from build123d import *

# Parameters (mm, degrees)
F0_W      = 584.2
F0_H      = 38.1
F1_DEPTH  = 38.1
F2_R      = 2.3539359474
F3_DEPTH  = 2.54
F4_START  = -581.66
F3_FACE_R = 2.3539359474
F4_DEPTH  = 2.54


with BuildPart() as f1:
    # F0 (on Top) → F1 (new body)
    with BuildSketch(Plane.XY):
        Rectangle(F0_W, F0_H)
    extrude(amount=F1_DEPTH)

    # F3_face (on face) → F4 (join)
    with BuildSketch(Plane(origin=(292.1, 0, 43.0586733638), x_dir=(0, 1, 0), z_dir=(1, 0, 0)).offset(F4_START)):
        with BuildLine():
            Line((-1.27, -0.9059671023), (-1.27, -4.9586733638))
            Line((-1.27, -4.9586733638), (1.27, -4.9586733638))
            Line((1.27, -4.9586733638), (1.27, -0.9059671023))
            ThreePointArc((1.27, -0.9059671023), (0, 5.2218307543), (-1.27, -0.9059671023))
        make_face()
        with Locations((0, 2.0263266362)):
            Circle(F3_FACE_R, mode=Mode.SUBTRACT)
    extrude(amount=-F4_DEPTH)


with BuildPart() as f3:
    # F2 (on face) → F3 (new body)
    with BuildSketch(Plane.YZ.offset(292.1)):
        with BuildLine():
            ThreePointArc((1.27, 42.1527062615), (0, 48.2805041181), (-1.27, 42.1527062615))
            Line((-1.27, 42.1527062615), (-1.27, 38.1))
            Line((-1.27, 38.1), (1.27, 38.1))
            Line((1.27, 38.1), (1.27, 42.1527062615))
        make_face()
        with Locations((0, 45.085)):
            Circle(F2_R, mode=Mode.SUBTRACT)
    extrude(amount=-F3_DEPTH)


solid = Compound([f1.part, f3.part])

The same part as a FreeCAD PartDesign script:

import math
import FreeCAD as App
import Part
import Sketcher

V = App.Vector
Q = App.Units.Quantity


def add_polygon(sketch, points):
    """Adds a closed chain of lines whose ends are joined by coincident constraints."""
    first, n = sketch.GeometryCount, len(points)
    for a, b in zip(points, points[1:] + points[:1]):
        sketch.addGeometry(Part.LineSegment(App.Vector(*a, 0), App.Vector(*b, 0)), False)
    for i in range(n):
        sketch.addConstraint(Sketcher.Constraint("Coincident", first + i, 2, first + (i + 1) % n, 1))

doc = App.newDocument("Part")
body = doc.addObject("PartDesign::Body", "Body")

# Sketch on XY plane
sketch1 = body.newObject("Sketcher::SketchObject", "Sketch")
sketch1.AttachmentSupport = (doc.getObject("XY_Plane"), [""])
sketch1.MapMode = "FlatFace"
add_polygon(sketch1, [(-292, 19), (-292, -19), (292, -19), (292, 19)])  # lines 0-3
sketch1.addConstraint([
    Sketcher.Constraint("Vertical", 0),
    Sketcher.Constraint("Horizontal", 1),
    Sketcher.Constraint("Vertical", 2),
    Sketcher.Constraint("Horizontal", 3),
    Sketcher.Constraint("Symmetric", 0, 2, 2, 2, -1, 1),
    Sketcher.Constraint("DistanceX", 1, 1, 1, 2, Q("23 in")),
    Sketcher.Constraint("DistanceY", 0, 2, 0, 1, Q("1.5 in")),
])
pad1 = body.newObject("PartDesign::Pad", "Pad")
pad1.Profile = sketch1
pad1.Length = Q("1.5 in")

# Sketch on YZ plane
sketch2 = body.newObject("Sketcher::SketchObject", "Sketch001")
sketch2.AttachmentSupport = (doc.getObject("YZ_Plane"), [""])
sketch2.MapMode = "FlatFace"
sketch2.AttachmentOffset = App.Placement(V(0, 0, -11.4 * 25.4), App.Rotation())
sketch2.addGeometry([
    Part.LineSegment(V(-1.3, 42.2, 0), V(-1.3, 38.1, 0)),  # 0
    Part.LineSegment(V(-1.3, 38.1, 0), V(1.3, 38.1, 0)),  # 1
    Part.LineSegment(V(1.3, 38.1, 0), V(1.3, 42.2, 0)),  # 2
    Part.ArcOfCircle(Part.Circle(V(0, 45.1, 0), V(0, 0, 1), 3.2), math.radians(-67), math.radians(247)),  # 3
    Part.Circle(V(0, 45.1, 0), V(0, 0, 1), 2.4),  # 4
], False)
sketch2.addConstraint([
    Sketcher.Constraint("Coincident", 0, 2, 1, 1),
    Sketcher.Constraint("Coincident", 1, 2, 2, 1),
    Sketcher.Constraint("Coincident", 2, 2, 3, 1),
    Sketcher.Constraint("Coincident", 3, 2, 0, 1),
    Sketcher.Constraint("Vertical", 0),
    Sketcher.Constraint("Horizontal", 1),
    Sketcher.Constraint("Vertical", 2),
    Sketcher.Constraint("Coincident", 4, 3, 3, 3),
    Sketcher.Constraint("Symmetric", 2, 2, 3, 2, -2),
    Sketcher.Constraint("DistanceX", 1, 1, 1, 2, Q("0.1 in")),
    Sketcher.Constraint("DistanceY", -1, 1, 0, 2, Q("1.5 in")),
    Sketcher.Constraint("Diameter", 4, 4.707872),
    Sketcher.Constraint("DistanceY", -1, 1, 3, 3, Q("1.775 in")),
    Sketcher.Constraint("Radius", 3, 3.195504),
])
pad2 = body.newObject("PartDesign::Pad", "Pad001")
pad2.Profile = sketch2
pad2.Length = Q("0.1 in")
pad2.Reversed = True
body2 = doc.addObject("PartDesign::Body", "Body001")

# Sketch on YZ plane
sketch3 = body2.newObject("Sketcher::SketchObject", "Sketch002")
sketch3.AttachmentSupport = (doc.getObject("YZ_Plane001"), [""])
sketch3.MapMode = "FlatFace"
sketch3.AttachmentOffset = App.Placement(V(0, 0, 11.5 * 25.4), App.Rotation())
sketch3.addGeometry([
    Part.ArcOfCircle(Part.Circle(V(0, 45.1, 0), V(0, 0, 1), 3.2), math.radians(-67), math.radians(247)),  # 0
    Part.LineSegment(V(-1.3, 42.2, 0), V(-1.3, 38.1, 0)),  # 1
    Part.LineSegment(V(-1.3, 38.1, 0), V(1.3, 38.1, 0)),  # 2
    Part.LineSegment(V(1.3, 38.1, 0), V(1.3, 42.2, 0)),  # 3
    Part.Circle(V(0, 45.1, 0), V(0, 0, 1), 2.4),  # 4
], False)
sketch3.addConstraint([
    Sketcher.Constraint("Coincident", 0, 2, 1, 1),
    Sketcher.Constraint("Coincident", 1, 2, 2, 1),
    Sketcher.Constraint("Coincident", 2, 2, 3, 1),
    Sketcher.Constraint("Coincident", 3, 2, 0, 1),
    Sketcher.Constraint("Vertical", 1),
    Sketcher.Constraint("Horizontal", 2),
    Sketcher.Constraint("Vertical", 3),
    Sketcher.Constraint("Coincident", 4, 3, 0, 3),
    Sketcher.Constraint("Symmetric", 0, 2, 3, 2, -2),
    Sketcher.Constraint("DistanceX", 2, 1, 2, 2, Q("0.1 in")),
    Sketcher.Constraint("DistanceY", -1, 1, 1, 2, Q("1.5 in")),
    Sketcher.Constraint("Diameter", 4, 4.707872),
    Sketcher.Constraint("DistanceY", -1, 1, 0, 3, Q("1.775 in")),
    Sketcher.Constraint("Radius", 0, 3.195504),
])
pad3 = body2.newObject("PartDesign::Pad", "Pad002")
pad3.Profile = sketch3
pad3.Length = Q("0.1 in")
pad3.Reversed = True

doc.recompute()
